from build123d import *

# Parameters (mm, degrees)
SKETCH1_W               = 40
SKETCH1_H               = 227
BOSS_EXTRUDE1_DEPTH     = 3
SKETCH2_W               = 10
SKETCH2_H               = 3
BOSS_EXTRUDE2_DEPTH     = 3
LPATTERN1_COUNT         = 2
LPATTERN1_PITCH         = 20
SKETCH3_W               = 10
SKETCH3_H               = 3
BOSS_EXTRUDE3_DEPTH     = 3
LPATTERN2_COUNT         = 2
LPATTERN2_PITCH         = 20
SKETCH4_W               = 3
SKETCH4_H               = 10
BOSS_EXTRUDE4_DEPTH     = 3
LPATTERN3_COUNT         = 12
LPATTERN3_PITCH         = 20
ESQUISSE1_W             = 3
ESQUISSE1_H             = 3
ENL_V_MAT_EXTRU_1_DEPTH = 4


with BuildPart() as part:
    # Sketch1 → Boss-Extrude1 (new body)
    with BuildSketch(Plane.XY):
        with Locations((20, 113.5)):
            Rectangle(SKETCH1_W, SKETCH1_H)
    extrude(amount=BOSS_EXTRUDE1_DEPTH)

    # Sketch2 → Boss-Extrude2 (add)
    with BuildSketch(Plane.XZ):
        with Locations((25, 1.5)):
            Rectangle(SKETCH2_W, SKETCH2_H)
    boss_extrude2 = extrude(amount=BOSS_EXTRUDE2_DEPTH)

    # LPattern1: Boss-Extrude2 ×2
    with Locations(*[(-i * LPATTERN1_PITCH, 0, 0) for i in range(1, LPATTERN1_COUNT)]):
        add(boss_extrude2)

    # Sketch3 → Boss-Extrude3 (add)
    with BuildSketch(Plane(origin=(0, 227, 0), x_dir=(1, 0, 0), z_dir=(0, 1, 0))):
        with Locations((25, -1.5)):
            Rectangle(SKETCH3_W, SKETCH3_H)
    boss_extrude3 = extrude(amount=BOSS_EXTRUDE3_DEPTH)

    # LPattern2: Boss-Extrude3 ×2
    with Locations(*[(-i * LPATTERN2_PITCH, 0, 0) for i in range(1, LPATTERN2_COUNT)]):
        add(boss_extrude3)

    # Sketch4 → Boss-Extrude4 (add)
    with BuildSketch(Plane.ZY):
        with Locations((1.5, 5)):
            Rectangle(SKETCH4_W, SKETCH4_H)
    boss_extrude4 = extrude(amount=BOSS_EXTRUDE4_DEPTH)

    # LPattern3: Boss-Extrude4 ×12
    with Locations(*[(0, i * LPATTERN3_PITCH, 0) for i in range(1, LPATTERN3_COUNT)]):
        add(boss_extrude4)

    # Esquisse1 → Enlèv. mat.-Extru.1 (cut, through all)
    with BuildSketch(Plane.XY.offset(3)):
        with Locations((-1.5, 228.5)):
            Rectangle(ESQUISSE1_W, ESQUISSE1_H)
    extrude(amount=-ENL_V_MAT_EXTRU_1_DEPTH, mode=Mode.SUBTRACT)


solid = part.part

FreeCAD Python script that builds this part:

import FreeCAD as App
import Part
import Sketcher

V = App.Vector

doc = App.newDocument("Part")
body = doc.addObject("PartDesign::Body", "Body")

# Sketch on XY plane
sketch1 = body.newObject("Sketcher::SketchObject", "Sketch")
sketch1.AttachmentSupport = (doc.getObject("XY_Plane"), [""])
sketch1.MapMode = "FlatFace"
sketch1.addGeometry(Part.LineSegment(V(0, 227, 0), V(0, 0, 0)), False)
sketch1.addGeometry(Part.LineSegment(V(0, 0, 0), V(40, 0, 0)), False)
sketch1.addGeometry(Part.LineSegment(V(40, 0, 0), V(40, 227, 0)), False)
sketch1.addGeometry(Part.LineSegment(V(40, 227, 0), V(0, 227, 0)), False)
sketch1.addConstraint(Sketcher.Constraint("Coincident", 0, 2, 1, 1))
sketch1.addConstraint(Sketcher.Constraint("Coincident", 1, 2, 2, 1))
sketch1.addConstraint(Sketcher.Constraint("Coincident", 2, 2, 3, 1))
sketch1.addConstraint(Sketcher.Constraint("Coincident", 3, 2, 0, 1))
sketch1.addConstraint(Sketcher.Constraint("Vertical", 0))
sketch1.addConstraint(Sketcher.Constraint("Horizontal", 1))
sketch1.addConstraint(Sketcher.Constraint("Vertical", 2))
sketch1.addConstraint(Sketcher.Constraint("Horizontal", 3))
sketch1.addConstraint(Sketcher.Constraint("Coincident", 0, 2, -1, 1))
sketch1.addConstraint(Sketcher.Constraint("DistanceX", 1, 1, 1, 2, 40.0))
sketch1.addConstraint(Sketcher.Constraint("DistanceY", 0, 2, 0, 1, 227.0))
pad1 = body.newObject("PartDesign::Pad", "Pad")
pad1.Profile = sketch1
pad1.Length = 3

# Sketch on XZ plane
sketch2 = body.newObject("Sketcher::SketchObject", "Sketch001")
sketch2.AttachmentSupport = (doc.getObject("XZ_Plane"), [""])
sketch2.MapMode = "FlatFace"
sketch2.addGeometry(Part.LineSegment(V(20, 3, 0), V(20, 0, 0)), False)
sketch2.addGeometry(Part.LineSegment(V(20, 0, 0), V(30, 0, 0)), False)
sketch2.addGeometry(Part.LineSegment(V(30, 0, 0), V(30, 3, 0)), False)
sketch2.addGeometry(Part.LineSegment(V(30, 3, 0), V(20, 3, 0)), False)
sketch2.addConstraint(Sketcher.Constraint("Coincident", 0, 2, 1, 1))
sketch2.addConstraint(Sketcher.Constraint("Coincident", 1, 2, 2, 1))
sketch2.addConstraint(Sketcher.Constraint("Coincident", 2, 2, 3, 1))
sketch2.addConstraint(Sketcher.Constraint("Coincident", 3, 2, 0, 1))
sketch2.addConstraint(Sketcher.Constraint("Vertical", 0))
sketch2.addConstraint(Sketcher.Constraint("Horizontal", 1))
sketch2.addConstraint(Sketcher.Constraint("Vertical", 2))
sketch2.addConstraint(Sketcher.Constraint("Horizontal", 3))
sketch2.addConstraint(Sketcher.Constraint("PointOnObject", 0, 2, -1))
sketch2.addConstraint(Sketcher.Constraint("DistanceX", 1, 1, 1, 2, 10.0))
sketch2.addConstraint(Sketcher.Constraint("DistanceY", 0, 2, 0, 1, 3.0))
sketch2.addConstraint(Sketcher.Constraint("DistanceX", -1, 1, 0, 2, 20.0))
pad2 = body.newObject("PartDesign::Pad", "Pad001")
pad2.Profile = sketch2
pad2.Length = 3
doc.recompute()

linearpattern = body.newObject("PartDesign::LinearPattern", "LinearPattern")
linearpattern.Originals = [pad2]
linearpattern.Direction = (doc.getObject("X_Axis"), [""])
linearpattern.Mode = "offset"
linearpattern.Offset = 20
linearpattern.Occurrences = 2
linearpattern.Reversed = True
body.Tip = linearpattern

# Sketch on XZ plane
sketch3 = body.newObject("Sketcher::SketchObject", "Sketch002")
sketch3.AttachmentSupport = (doc.getObject("XZ_Plane"), [""])
sketch3.MapMode = "FlatFace"
sketch3.AttachmentOffset = App.Placement(V(0, 0, -227), App.Rotation())
sketch3.addGeometry(Part.LineSegment(V(20, 0, 0), V(20, 3, 0)), False)
sketch3.addGeometry(Part.LineSegment(V(20, 3, 0), V(30, 3, 0)), False)
sketch3.addGeometry(Part.LineSegment(V(30, 3, 0), V(30, 0, 0)), False)
sketch3.addGeometry(Part.LineSegment(V(30, 0, 0), V(20, 0, 0)), False)
sketch3.addConstraint(Sketcher.Constraint("Coincident", 0, 2, 1, 1))
sketch3.addConstraint(Sketcher.Constraint("Coincident", 1, 2, 2, 1))
sketch3.addConstraint(Sketcher.Constraint("Coincident", 2, 2, 3, 1))
sketch3.addConstraint(Sketcher.Constraint("Coincident", 3, 2, 0, 1))
sketch3.addConstraint(Sketcher.Constraint("Vertical", 0))
sketch3.addConstraint(Sketcher.Constraint("Horizontal", 1))
sketch3.addConstraint(Sketcher.Constraint("Vertical", 2))
sketch3.addConstraint(Sketcher.Constraint("Horizontal", 3))
sketch3.addConstraint(Sketcher.Constraint("PointOnObject", 2, 2, -1))
sketch3.addConstraint(Sketcher.Constraint("DistanceX", 1, 1, 1, 2, 10.0))
sketch3.addConstraint(Sketcher.Constraint("DistanceY", 0, 1, 0, 2, 3.0))
sketch3.addConstraint(Sketcher.Constraint("DistanceX", -1, 1, 0, 2, 20.0))
pad3 = body.newObject("PartDesign::Pad", "Pad002")
pad3.Profile = sketch3
pad3.Length = 3
pad3.Reversed = True
doc.recompute()

linearpattern2 = body.newObject("PartDesign::LinearPattern", "LinearPattern001")
linearpattern2.Originals = [pad3]
linearpattern2.Direction = (doc.getObject("X_Axis"), [""])
linearpattern2.Mode = "offset"
linearpattern2.Offset = 20
linearpattern2.Occurrences = 2
linearpattern2.Reversed = True
body.Tip = linearpattern2

# Sketch on YZ plane
sketch4 = body.newObject("Sketcher::SketchObject", "Sketch003")
sketch4.AttachmentSupport = (doc.getObject("YZ_Plane"), [""])
sketch4.MapMode = "FlatFace"
sketch4.addGeometry(Part.LineSegment(V(10, 0, 0), V(0, 0, 0)), False)
sketch4.addGeometry(Part.LineSegment(V(0, 0, 0), V(0, 3, 0)), False)
sketch4.addGeometry(Part.LineSegment(V(0, 3, 0), V(10, 3, 0)), False)
sketch4.addGeometry(Part.LineSegment(V(10, 3, 0), V(10, 0, 0)), False)
sketch4.addConstraint(Sketcher.Constraint("Coincident", 0, 2, 1, 1))
sketch4.addConstraint(Sketcher.Constraint("Coincident", 1, 2, 2, 1))
sketch4.addConstraint(Sketcher.Constraint("Coincident", 2, 2, 3, 1))
sketch4.addConstraint(Sketcher.Constraint("Coincident", 3, 2, 0, 1))
sketch4.addConstraint(Sketcher.Constraint("Horizontal", 0))
sketch4.addConstraint(Sketcher.Constraint("Vertical", 1))
sketch4.addConstraint(Sketcher.Constraint("Horizontal", 2))
sketch4.addConstraint(Sketcher.Constraint("Vertical", 3))
sketch4.addConstraint(Sketcher.Constraint("Coincident", 0, 2, -1, 1))
sketch4.addConstraint(Sketcher.Constraint("DistanceX", 0, 2, 0, 1, 10.0))
sketch4.addConstraint(Sketcher.Constraint("DistanceY", 1, 1, 1, 2, 3.0))
pad4 = body.newObject("PartDesign::Pad", "Pad003")
pad4.Profile = sketch4
pad4.Length = 3
pad4.Reversed = True
doc.recompute()

linearpattern3 = body.newObject("PartDesign::LinearPattern", "LinearPattern002")
linearpattern3.Originals = [pad4]
linearpattern3.Direction = (doc.getObject("Y_Axis"), [""])
linearpattern3.Mode = "offset"
linearpattern3.Offset = 20
linearpattern3.Occurrences = 12
body.Tip = linearpattern3

# Sketch on XY plane
sketch5 = body.newObject("Sketcher::SketchObject", "Sketch004")
sketch5.AttachmentSupport = (doc.getObject("XY_Plane"), [""])
sketch5.MapMode = "FlatFace"
sketch5.AttachmentOffset = App.Placement(V(0, 0, 3), App.Rotation())
sketch5.addGeometry(Part.LineSegment(V(-3, 230, 0), V(-3, 227, 0)), False)
sketch5.addGeometry(Part.LineSegment(V(-3, 227, 0), V(0, 227, 0)), False)
sketch5.addGeometry(Part.LineSegment(V(0, 227, 0), V(0, 230, 0)), False)
sketch5.addGeometry(Part.LineSegment(V(0, 230, 0), V(-3, 230, 0)), False)
sketch5.addConstraint(Sketcher.Constraint("Coincident", 0, 2, 1, 1))
sketch5.addConstraint(Sketcher.Constraint("Coincident", 1, 2, 2, 1))
sketch5.addConstraint(Sketcher.Constraint("Coincident", 2, 2, 3, 1))
sketch5.addConstraint(Sketcher.Constraint("Coincident", 3, 2, 0, 1))
sketch5.addConstraint(Sketcher.Constraint("Vertical", 0))
sketch5.addConstraint(Sketcher.Constraint("Horizontal", 1))
sketch5.addConstraint(Sketcher.Constraint("Vertical", 2))
sketch5.addConstraint(Sketcher.Constraint("Horizontal", 3))
sketch5.addConstraint(Sketcher.Constraint("PointOnObject", 1, 2, -2))
sketch5.addConstraint(Sketcher.Constraint("Equal", 3, 0))
sketch5.addConstraint(Sketcher.Constraint("DistanceX", 1, 1, 1, 2, 3.0))
sketch5.addConstraint(Sketcher.Constraint("DistanceY", -1, 1, 0, 2, 227.0))
pocket1 = body.newObject("PartDesign::Pocket", "Pocket")
pocket1.Profile = sketch5
pocket1.Type = "ThroughAll"

doc.recompute()
